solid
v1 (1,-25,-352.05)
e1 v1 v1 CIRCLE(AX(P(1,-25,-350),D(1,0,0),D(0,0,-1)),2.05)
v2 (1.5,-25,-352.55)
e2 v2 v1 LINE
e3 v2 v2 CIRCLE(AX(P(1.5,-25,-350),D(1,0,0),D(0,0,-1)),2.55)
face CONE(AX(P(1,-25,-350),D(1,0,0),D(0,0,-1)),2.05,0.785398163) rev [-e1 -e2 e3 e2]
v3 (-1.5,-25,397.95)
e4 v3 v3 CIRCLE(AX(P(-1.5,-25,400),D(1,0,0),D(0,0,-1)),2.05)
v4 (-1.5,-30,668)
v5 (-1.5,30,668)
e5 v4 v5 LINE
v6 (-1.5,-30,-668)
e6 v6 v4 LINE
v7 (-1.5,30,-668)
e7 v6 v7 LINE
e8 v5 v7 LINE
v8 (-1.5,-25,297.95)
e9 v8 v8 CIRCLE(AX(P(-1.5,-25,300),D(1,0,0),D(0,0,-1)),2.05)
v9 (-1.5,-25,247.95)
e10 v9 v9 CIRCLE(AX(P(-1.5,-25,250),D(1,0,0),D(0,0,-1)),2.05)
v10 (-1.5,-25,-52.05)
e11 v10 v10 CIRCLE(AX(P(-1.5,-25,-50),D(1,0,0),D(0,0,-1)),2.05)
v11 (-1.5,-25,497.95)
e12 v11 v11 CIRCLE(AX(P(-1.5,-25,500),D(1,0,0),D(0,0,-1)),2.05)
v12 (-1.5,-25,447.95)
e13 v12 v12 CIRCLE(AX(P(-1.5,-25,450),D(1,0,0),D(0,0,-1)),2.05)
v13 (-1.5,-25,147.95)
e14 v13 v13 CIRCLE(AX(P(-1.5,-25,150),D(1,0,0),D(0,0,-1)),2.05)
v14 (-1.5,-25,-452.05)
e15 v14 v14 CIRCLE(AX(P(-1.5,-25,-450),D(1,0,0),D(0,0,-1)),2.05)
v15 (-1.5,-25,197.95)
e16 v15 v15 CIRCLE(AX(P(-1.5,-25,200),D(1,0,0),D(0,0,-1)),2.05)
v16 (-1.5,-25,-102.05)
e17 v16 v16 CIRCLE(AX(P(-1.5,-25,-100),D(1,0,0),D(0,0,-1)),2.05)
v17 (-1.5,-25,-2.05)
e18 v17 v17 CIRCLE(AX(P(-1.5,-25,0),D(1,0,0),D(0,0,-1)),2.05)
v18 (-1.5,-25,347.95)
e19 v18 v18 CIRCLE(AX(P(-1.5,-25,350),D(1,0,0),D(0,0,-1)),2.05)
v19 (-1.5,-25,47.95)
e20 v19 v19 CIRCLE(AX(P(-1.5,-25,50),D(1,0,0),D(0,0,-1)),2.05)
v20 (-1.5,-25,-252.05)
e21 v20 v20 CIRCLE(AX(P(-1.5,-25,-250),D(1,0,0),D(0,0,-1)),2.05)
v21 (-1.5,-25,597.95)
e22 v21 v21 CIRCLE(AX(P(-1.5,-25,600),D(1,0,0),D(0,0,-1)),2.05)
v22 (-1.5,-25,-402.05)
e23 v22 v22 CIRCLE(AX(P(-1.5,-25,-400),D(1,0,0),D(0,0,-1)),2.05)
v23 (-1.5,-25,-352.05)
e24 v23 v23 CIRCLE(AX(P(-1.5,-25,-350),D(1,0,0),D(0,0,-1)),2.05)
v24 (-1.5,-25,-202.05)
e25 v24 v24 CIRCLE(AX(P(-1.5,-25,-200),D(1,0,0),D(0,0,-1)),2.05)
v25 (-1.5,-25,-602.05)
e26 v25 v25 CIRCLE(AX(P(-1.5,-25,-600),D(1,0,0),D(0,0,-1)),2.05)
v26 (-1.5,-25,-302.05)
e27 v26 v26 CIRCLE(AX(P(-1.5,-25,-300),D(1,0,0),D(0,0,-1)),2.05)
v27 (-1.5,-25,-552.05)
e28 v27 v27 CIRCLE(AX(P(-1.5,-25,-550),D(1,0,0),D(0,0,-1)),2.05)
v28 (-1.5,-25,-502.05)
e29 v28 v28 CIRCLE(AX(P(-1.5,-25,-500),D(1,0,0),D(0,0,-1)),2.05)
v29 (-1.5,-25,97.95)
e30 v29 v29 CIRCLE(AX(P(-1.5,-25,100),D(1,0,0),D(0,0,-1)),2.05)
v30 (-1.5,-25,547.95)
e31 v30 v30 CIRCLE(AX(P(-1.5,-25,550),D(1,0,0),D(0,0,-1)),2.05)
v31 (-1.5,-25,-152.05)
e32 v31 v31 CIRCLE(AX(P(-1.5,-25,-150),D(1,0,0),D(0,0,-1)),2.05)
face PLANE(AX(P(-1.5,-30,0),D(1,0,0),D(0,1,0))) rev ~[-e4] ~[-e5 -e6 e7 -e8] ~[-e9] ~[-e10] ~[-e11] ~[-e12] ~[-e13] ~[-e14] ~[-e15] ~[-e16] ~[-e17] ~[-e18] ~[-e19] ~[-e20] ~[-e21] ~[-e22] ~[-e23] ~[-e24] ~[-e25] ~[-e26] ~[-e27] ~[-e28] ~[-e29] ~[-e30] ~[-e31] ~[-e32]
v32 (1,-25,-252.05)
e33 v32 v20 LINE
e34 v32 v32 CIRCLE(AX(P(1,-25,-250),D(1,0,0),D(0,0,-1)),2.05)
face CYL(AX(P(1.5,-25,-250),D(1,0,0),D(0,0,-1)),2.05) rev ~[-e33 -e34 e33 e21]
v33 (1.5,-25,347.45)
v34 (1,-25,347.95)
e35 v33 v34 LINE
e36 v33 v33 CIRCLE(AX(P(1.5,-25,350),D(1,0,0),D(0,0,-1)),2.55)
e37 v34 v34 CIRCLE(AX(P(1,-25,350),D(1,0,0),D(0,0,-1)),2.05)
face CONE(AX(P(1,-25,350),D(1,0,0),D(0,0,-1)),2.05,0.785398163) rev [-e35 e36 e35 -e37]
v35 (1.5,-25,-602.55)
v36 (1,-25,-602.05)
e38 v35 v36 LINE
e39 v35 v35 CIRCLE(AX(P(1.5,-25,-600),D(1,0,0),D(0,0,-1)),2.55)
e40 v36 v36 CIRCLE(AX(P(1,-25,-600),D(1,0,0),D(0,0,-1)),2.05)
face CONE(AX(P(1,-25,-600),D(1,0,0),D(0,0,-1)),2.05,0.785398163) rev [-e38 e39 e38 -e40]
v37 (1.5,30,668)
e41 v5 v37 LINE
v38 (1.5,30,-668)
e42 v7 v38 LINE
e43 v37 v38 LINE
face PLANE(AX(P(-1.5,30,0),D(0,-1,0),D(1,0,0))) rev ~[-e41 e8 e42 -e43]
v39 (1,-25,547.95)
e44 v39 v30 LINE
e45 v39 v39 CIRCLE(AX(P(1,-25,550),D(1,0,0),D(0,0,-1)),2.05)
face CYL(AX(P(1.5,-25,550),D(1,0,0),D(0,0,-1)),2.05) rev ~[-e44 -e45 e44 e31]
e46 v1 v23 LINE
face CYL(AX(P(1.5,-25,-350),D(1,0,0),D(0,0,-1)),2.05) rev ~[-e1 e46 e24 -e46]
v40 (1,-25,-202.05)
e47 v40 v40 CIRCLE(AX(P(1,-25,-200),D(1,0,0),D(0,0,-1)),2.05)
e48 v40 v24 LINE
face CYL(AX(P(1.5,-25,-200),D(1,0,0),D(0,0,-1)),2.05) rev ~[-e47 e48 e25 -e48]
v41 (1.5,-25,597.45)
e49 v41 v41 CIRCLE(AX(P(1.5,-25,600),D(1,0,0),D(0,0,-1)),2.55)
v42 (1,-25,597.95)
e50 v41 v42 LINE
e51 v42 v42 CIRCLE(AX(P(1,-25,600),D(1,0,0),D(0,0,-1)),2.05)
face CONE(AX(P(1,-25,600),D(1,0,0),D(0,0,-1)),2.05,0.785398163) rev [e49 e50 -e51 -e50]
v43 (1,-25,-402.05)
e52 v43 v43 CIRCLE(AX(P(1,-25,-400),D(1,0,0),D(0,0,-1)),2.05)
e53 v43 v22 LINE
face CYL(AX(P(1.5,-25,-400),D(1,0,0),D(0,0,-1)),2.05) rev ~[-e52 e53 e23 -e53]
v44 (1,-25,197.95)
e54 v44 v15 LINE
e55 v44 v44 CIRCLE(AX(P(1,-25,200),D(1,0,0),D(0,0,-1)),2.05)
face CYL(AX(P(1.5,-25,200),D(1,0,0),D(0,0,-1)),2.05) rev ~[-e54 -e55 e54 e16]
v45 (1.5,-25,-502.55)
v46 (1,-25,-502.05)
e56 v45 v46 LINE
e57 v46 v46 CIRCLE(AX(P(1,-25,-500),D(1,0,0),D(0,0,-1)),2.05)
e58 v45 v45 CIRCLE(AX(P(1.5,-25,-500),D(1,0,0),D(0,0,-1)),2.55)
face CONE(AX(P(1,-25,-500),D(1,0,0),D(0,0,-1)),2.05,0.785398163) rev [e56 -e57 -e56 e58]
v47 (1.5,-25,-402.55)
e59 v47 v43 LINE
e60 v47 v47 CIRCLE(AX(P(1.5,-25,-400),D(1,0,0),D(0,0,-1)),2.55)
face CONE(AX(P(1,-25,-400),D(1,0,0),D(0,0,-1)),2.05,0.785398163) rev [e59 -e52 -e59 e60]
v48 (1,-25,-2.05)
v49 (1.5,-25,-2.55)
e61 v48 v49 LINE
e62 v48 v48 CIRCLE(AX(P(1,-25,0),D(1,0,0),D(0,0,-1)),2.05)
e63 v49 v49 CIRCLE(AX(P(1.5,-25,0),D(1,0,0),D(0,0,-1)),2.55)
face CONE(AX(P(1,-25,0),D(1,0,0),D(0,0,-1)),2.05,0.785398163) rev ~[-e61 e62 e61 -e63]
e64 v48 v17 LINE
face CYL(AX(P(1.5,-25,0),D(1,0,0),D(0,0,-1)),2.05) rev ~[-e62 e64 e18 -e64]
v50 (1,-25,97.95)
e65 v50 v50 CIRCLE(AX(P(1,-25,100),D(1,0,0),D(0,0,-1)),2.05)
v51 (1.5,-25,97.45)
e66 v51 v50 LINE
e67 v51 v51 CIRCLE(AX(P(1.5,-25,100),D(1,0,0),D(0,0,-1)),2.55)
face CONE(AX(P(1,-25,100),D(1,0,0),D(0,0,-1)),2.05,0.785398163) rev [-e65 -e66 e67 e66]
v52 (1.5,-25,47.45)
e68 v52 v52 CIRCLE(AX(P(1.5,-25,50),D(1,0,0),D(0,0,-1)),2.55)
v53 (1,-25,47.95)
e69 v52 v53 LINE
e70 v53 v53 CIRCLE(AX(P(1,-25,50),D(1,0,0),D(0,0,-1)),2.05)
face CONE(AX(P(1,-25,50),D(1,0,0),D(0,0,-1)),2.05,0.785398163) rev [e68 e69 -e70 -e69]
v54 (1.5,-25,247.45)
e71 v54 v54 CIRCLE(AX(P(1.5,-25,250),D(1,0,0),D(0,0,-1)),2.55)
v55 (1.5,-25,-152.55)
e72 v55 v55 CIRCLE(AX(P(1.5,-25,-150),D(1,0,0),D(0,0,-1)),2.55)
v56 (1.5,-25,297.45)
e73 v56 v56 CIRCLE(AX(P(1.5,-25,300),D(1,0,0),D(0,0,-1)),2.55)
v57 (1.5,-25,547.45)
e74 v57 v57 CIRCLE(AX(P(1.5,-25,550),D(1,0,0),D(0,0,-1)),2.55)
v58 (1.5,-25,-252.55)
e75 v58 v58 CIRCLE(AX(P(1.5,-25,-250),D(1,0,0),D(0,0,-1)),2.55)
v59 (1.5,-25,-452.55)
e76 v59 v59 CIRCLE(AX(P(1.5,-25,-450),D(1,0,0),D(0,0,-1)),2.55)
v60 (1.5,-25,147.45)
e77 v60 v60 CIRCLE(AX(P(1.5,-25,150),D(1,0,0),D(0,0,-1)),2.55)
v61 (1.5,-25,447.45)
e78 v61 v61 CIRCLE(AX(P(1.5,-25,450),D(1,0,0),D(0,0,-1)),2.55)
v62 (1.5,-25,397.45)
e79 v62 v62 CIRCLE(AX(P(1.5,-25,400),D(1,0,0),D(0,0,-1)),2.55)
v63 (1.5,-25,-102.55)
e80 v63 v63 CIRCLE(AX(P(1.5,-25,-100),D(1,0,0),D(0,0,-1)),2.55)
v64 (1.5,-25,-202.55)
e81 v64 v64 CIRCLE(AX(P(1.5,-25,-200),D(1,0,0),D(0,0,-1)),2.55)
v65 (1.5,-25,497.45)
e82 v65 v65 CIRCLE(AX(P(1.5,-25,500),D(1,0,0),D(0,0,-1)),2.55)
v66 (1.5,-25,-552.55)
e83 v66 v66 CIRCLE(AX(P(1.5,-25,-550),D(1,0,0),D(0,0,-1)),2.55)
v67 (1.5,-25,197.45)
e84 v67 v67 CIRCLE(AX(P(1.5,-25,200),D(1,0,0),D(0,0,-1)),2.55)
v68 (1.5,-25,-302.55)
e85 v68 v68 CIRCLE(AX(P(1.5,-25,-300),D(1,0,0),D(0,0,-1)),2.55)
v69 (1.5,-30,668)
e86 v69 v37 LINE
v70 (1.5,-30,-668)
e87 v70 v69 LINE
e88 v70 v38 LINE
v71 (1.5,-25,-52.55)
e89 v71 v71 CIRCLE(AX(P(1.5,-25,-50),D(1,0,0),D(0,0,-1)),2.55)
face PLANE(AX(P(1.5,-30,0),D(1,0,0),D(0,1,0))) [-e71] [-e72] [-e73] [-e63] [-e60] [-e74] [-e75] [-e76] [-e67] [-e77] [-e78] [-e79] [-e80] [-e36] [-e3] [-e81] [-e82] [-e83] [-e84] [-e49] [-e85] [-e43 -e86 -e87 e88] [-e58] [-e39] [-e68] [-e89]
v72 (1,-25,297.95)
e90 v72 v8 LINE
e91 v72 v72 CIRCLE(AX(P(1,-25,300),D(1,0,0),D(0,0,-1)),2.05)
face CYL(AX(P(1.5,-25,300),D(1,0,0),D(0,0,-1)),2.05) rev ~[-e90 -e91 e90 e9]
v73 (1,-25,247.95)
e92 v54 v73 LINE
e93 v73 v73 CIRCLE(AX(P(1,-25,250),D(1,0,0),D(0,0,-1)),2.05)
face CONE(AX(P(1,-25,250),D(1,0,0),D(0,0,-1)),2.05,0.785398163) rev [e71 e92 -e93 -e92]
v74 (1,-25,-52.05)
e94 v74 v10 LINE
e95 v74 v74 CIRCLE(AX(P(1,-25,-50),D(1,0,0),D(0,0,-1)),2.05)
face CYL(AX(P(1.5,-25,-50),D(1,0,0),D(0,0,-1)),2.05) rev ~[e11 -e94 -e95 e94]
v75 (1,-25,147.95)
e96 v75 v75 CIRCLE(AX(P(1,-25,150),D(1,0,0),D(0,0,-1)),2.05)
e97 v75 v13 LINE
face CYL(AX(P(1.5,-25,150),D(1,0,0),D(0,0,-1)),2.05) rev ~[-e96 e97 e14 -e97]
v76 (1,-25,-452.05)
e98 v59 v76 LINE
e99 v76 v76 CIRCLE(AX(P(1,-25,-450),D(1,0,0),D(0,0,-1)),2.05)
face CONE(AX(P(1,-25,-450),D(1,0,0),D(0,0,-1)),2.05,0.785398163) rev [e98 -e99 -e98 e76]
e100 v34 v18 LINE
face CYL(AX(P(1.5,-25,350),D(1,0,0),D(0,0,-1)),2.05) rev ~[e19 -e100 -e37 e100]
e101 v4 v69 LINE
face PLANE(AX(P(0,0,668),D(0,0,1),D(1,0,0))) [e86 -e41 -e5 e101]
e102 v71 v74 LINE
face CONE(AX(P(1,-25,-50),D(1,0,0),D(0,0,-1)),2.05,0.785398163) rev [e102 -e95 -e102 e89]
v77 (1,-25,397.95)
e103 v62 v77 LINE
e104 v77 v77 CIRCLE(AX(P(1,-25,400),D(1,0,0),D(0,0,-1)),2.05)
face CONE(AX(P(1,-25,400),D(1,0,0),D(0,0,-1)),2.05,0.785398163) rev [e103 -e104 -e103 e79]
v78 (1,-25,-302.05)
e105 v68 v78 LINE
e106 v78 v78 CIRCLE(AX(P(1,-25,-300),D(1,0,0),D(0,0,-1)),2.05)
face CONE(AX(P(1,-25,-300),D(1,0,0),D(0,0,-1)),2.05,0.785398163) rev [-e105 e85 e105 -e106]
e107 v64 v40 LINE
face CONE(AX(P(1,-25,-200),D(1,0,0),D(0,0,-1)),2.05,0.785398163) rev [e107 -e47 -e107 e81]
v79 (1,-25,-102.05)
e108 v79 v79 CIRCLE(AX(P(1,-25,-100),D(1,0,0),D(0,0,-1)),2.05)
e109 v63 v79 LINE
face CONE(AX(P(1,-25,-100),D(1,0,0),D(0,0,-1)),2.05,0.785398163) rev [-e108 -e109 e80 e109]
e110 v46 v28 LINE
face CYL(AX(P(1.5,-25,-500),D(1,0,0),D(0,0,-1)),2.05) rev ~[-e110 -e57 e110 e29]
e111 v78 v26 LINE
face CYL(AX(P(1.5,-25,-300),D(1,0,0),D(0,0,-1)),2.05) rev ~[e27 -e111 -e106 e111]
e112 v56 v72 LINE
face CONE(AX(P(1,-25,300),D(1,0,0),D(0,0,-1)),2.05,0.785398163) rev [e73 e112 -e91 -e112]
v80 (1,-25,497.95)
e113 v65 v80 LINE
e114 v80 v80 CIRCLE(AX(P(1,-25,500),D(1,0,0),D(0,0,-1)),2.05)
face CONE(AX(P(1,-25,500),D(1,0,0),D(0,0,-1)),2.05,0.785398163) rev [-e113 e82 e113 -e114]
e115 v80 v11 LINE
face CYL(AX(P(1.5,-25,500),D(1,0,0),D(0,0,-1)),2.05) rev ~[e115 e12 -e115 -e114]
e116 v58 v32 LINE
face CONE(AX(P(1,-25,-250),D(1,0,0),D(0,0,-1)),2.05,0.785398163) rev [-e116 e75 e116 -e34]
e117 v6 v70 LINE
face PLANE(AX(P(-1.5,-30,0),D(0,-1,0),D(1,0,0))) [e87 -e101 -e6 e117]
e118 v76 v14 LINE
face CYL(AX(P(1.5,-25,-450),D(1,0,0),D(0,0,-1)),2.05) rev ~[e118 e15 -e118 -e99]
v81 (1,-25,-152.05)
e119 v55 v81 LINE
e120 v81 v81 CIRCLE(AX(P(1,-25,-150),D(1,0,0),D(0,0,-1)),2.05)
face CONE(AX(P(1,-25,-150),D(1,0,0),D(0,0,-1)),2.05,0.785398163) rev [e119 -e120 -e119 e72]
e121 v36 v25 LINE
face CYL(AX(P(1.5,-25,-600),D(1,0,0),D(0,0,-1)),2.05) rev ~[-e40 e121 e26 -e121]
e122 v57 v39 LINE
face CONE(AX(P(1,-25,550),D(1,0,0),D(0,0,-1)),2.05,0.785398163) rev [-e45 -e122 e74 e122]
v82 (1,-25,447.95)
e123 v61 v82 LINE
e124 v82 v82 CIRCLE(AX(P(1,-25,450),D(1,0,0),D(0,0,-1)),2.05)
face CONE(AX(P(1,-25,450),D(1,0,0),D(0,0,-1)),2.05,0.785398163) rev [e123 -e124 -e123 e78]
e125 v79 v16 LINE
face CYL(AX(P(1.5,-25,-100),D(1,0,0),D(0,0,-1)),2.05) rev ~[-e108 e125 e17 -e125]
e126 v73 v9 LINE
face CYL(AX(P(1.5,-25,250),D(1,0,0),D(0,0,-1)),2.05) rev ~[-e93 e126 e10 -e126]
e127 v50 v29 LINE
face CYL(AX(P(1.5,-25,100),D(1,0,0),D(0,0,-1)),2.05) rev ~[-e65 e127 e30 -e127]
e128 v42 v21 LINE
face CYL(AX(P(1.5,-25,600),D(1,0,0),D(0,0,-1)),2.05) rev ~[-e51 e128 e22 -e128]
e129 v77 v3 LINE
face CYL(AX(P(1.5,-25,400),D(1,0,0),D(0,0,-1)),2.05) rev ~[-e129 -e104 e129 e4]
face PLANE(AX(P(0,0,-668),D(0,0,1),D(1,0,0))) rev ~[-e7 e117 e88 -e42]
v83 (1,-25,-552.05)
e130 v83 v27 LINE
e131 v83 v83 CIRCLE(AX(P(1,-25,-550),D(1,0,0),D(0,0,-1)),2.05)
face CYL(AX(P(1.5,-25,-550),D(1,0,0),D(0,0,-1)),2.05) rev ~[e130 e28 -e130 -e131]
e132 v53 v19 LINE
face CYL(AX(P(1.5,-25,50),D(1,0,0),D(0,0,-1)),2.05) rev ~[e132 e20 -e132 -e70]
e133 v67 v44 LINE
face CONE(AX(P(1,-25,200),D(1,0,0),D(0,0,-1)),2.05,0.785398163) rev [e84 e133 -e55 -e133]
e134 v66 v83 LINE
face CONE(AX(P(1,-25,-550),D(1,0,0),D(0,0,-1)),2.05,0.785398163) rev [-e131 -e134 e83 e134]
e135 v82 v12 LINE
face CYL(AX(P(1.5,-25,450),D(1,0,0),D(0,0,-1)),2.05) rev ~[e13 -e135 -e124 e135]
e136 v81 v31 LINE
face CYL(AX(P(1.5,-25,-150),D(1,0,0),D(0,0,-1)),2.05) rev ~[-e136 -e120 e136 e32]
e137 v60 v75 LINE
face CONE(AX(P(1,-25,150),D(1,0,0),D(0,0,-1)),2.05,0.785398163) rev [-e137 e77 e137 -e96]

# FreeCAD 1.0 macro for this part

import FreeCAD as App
import Part
import Sketcher
from FreeCAD import Vector
Q = App.Units.Quantity


def edges_at(feature, points):
    """Names of the edges that pass closest to the given points."""
    edges = feature.Shape.Edges
    near = lambda p: min(range(len(edges)), key=lambda i: edges[i].distToShape(Part.Vertex(*p))[0])
    return sorted({f"Edge{near(p) + 1}" for p in points})

doc = App.newDocument("Part")
params = doc.addObject("Spreadsheet::Sheet", "Params")
for row, (alias, value) in enumerate([
    ("sketch1_width", "3 mm"),
    ("sketch1_height", "60 mm"),
    ("pad1_length", "1336 mm"),
    ("sketch2_diameter", "4.1 mm"),
    ("pocket1_length", "10 mm"),
    ("chamfer_size", "0.5 mm"),
    ("linearpattern_pitch", "50 mm"),
    ("chamfer2_size", "0.5 mm"),
    ("linearpattern2_pitch", "50 mm"),
    ("chamfer3_size", "0.5 mm"),
], start=1):
    params.set(f"A{row}", alias)
    params.set(f"B{row}", "=" + value)
    params.setAlias(f"B{row}", alias)

body = doc.addObject("PartDesign::Body", "Body")

# Sketch on XY plane
sketch1 = body.newObject("Sketcher::SketchObject", "Sketch")
sketch1.AttachmentSupport = (doc.getObject("XY_Plane"), [""])
sketch1.MapMode = "FlatFace"
sketch1.addGeometry([
    Part.LineSegment(Vector(-1.5, 30, 0), Vector(-1.5, -30, 0)),
    Part.LineSegment(Vector(-1.5, -30, 0), Vector(1.5, -30, 0)),
    Part.LineSegment(Vector(1.5, -30, 0), Vector(1.5, 30, 0)),
    Part.LineSegment(Vector(1.5, 30, 0), Vector(-1.5, 30, 0)),
], False)
sketch1.addConstraint([
    Sketcher.Constraint("Coincident", 0, 2, 1, 1),
    Sketcher.Constraint("Coincident", 1, 2, 2, 1),
    Sketcher.Constraint("Coincident", 2, 2, 3, 1),
    Sketcher.Constraint("Coincident", 3, 2, 0, 1),
    Sketcher.Constraint("Vertical", 0),
    Sketcher.Constraint("Horizontal", 1),
    Sketcher.Constraint("Vertical", 2),
    Sketcher.Constraint("Horizontal", 3),
    Sketcher.Constraint("Symmetric", 0, 2, 2, 2, -1, 1),
    Sketcher.Constraint("DistanceX", 1, 1, 1, 2, Q("3 mm")),
    Sketcher.Constraint("DistanceY", 0, 2, 0, 1, Q("60 mm")),
])
sketch1.setExpression("Constraints[9]", "Params.sketch1_width")
sketch1.setExpression("Constraints[10]", "Params.sketch1_height")
pad1 = body.newObject("PartDesign::Pad", "Pad")
pad1.Profile = sketch1
pad1.setExpression("Length", "Params.pad1_length")
pad1.Midplane = True

# Sketch on YZ plane
sketch2 = body.newObject("Sketcher::SketchObject", "Sketch001")
sketch2.AttachmentSupport = (doc.getObject("YZ_Plane"), [""])
sketch2.MapMode = "FlatFace"
sketch2.AttachmentOffset = App.Placement(Vector(0, 0, 1.5), App.Rotation())
sketch2.addGeometry(Part.Circle(Vector(-25, 0, 0), Vector(0, 0, 1), 2), False)
sketch2.addConstraint([
    Sketcher.Constraint("PointOnObject", 0, 3, -1),
    Sketcher.Constraint("Diameter", 0, Q("4.1 mm")),
    Sketcher.Constraint("DistanceX", 0, 3, -1, 1, Q("25 mm")),
])
sketch2.setExpression("Constraints[1]", "Params.sketch2_diameter")
pocket1 = body.newObject("PartDesign::Pocket", "Pocket")
pocket1.Profile = sketch2
pocket1.setExpression("Length", "Params.pocket1_length")
doc.recompute()

chamfer = body.newObject("PartDesign::Chamfer", "Chamfer")
chamfer.Base = (pocket1, edges_at(pocket1, [(1.5, -25, 2.05)]))
chamfer.setExpression("Size", "Params.chamfer_size")
doc.recompute()

linearpattern = body.newObject("PartDesign::LinearPattern", "LinearPattern")
linearpattern.Originals = [pocket1]
linearpattern.Direction = (doc.getObject("Z_Axis"), [""])
linearpattern.Mode = "offset"
linearpattern.setExpression("Offset", "Params.linearpattern_pitch")
linearpattern.Occurrences = 13
linearpattern.Reversed = True
body.Tip = linearpattern
doc.recompute()

chamfer2 = body.newObject("PartDesign::Chamfer", "Chamfer001")
chamfer2.Base = (linearpattern, edges_at(linearpattern, [
    (1.5, -25, -47.95),
    (1.5, -25, -97.95),
    (1.5, -25, -147.95),
    (1.5, -25, -197.95),
    (1.5, -25, -247.95),
    (1.5, -25, -297.95),
    (1.5, -25, -347.95),
    (1.5, -25, -397.95),
    (1.5, -25, -447.95),
    (1.5, -25, -497.95),
    (1.5, -25, -547.95),
    (1.5, -25, -597.95),
]))
chamfer2.setExpression("Size", "Params.chamfer2_size")
doc.recompute()

linearpattern2 = body.newObject("PartDesign::LinearPattern", "LinearPattern001")
linearpattern2.Originals = [pocket1]
linearpattern2.Direction = (doc.getObject("Z_Axis"), [""])
linearpattern2.Mode = "offset"
linearpattern2.setExpression("Offset", "Params.linearpattern2_pitch")
linearpattern2.Occurrences = 13
body.Tip = linearpattern2
doc.recompute()

chamfer3 = body.newObject("PartDesign::Chamfer", "Chamfer002")
chamfer3.Base = (linearpattern2, edges_at(linearpattern2, [
    (1.5, -25, 52.05),
    (1.5, -25, 102.05),
    (1.5, -25, 152.05),
    (1.5, -25, 202.05),
    (1.5, -25, 252.05),
    (1.5, -25, 302.05),
    (1.5, -25, 352.05),
    (1.5, -25, 402.05),
    (1.5, -25, 452.05),
    (1.5, -25, 502.05),
    (1.5, -25, 552.05),
    (1.5, -25, 602.05),
]))
chamfer3.setExpression("Size", "Params.chamfer3_size")

doc.recompute()
